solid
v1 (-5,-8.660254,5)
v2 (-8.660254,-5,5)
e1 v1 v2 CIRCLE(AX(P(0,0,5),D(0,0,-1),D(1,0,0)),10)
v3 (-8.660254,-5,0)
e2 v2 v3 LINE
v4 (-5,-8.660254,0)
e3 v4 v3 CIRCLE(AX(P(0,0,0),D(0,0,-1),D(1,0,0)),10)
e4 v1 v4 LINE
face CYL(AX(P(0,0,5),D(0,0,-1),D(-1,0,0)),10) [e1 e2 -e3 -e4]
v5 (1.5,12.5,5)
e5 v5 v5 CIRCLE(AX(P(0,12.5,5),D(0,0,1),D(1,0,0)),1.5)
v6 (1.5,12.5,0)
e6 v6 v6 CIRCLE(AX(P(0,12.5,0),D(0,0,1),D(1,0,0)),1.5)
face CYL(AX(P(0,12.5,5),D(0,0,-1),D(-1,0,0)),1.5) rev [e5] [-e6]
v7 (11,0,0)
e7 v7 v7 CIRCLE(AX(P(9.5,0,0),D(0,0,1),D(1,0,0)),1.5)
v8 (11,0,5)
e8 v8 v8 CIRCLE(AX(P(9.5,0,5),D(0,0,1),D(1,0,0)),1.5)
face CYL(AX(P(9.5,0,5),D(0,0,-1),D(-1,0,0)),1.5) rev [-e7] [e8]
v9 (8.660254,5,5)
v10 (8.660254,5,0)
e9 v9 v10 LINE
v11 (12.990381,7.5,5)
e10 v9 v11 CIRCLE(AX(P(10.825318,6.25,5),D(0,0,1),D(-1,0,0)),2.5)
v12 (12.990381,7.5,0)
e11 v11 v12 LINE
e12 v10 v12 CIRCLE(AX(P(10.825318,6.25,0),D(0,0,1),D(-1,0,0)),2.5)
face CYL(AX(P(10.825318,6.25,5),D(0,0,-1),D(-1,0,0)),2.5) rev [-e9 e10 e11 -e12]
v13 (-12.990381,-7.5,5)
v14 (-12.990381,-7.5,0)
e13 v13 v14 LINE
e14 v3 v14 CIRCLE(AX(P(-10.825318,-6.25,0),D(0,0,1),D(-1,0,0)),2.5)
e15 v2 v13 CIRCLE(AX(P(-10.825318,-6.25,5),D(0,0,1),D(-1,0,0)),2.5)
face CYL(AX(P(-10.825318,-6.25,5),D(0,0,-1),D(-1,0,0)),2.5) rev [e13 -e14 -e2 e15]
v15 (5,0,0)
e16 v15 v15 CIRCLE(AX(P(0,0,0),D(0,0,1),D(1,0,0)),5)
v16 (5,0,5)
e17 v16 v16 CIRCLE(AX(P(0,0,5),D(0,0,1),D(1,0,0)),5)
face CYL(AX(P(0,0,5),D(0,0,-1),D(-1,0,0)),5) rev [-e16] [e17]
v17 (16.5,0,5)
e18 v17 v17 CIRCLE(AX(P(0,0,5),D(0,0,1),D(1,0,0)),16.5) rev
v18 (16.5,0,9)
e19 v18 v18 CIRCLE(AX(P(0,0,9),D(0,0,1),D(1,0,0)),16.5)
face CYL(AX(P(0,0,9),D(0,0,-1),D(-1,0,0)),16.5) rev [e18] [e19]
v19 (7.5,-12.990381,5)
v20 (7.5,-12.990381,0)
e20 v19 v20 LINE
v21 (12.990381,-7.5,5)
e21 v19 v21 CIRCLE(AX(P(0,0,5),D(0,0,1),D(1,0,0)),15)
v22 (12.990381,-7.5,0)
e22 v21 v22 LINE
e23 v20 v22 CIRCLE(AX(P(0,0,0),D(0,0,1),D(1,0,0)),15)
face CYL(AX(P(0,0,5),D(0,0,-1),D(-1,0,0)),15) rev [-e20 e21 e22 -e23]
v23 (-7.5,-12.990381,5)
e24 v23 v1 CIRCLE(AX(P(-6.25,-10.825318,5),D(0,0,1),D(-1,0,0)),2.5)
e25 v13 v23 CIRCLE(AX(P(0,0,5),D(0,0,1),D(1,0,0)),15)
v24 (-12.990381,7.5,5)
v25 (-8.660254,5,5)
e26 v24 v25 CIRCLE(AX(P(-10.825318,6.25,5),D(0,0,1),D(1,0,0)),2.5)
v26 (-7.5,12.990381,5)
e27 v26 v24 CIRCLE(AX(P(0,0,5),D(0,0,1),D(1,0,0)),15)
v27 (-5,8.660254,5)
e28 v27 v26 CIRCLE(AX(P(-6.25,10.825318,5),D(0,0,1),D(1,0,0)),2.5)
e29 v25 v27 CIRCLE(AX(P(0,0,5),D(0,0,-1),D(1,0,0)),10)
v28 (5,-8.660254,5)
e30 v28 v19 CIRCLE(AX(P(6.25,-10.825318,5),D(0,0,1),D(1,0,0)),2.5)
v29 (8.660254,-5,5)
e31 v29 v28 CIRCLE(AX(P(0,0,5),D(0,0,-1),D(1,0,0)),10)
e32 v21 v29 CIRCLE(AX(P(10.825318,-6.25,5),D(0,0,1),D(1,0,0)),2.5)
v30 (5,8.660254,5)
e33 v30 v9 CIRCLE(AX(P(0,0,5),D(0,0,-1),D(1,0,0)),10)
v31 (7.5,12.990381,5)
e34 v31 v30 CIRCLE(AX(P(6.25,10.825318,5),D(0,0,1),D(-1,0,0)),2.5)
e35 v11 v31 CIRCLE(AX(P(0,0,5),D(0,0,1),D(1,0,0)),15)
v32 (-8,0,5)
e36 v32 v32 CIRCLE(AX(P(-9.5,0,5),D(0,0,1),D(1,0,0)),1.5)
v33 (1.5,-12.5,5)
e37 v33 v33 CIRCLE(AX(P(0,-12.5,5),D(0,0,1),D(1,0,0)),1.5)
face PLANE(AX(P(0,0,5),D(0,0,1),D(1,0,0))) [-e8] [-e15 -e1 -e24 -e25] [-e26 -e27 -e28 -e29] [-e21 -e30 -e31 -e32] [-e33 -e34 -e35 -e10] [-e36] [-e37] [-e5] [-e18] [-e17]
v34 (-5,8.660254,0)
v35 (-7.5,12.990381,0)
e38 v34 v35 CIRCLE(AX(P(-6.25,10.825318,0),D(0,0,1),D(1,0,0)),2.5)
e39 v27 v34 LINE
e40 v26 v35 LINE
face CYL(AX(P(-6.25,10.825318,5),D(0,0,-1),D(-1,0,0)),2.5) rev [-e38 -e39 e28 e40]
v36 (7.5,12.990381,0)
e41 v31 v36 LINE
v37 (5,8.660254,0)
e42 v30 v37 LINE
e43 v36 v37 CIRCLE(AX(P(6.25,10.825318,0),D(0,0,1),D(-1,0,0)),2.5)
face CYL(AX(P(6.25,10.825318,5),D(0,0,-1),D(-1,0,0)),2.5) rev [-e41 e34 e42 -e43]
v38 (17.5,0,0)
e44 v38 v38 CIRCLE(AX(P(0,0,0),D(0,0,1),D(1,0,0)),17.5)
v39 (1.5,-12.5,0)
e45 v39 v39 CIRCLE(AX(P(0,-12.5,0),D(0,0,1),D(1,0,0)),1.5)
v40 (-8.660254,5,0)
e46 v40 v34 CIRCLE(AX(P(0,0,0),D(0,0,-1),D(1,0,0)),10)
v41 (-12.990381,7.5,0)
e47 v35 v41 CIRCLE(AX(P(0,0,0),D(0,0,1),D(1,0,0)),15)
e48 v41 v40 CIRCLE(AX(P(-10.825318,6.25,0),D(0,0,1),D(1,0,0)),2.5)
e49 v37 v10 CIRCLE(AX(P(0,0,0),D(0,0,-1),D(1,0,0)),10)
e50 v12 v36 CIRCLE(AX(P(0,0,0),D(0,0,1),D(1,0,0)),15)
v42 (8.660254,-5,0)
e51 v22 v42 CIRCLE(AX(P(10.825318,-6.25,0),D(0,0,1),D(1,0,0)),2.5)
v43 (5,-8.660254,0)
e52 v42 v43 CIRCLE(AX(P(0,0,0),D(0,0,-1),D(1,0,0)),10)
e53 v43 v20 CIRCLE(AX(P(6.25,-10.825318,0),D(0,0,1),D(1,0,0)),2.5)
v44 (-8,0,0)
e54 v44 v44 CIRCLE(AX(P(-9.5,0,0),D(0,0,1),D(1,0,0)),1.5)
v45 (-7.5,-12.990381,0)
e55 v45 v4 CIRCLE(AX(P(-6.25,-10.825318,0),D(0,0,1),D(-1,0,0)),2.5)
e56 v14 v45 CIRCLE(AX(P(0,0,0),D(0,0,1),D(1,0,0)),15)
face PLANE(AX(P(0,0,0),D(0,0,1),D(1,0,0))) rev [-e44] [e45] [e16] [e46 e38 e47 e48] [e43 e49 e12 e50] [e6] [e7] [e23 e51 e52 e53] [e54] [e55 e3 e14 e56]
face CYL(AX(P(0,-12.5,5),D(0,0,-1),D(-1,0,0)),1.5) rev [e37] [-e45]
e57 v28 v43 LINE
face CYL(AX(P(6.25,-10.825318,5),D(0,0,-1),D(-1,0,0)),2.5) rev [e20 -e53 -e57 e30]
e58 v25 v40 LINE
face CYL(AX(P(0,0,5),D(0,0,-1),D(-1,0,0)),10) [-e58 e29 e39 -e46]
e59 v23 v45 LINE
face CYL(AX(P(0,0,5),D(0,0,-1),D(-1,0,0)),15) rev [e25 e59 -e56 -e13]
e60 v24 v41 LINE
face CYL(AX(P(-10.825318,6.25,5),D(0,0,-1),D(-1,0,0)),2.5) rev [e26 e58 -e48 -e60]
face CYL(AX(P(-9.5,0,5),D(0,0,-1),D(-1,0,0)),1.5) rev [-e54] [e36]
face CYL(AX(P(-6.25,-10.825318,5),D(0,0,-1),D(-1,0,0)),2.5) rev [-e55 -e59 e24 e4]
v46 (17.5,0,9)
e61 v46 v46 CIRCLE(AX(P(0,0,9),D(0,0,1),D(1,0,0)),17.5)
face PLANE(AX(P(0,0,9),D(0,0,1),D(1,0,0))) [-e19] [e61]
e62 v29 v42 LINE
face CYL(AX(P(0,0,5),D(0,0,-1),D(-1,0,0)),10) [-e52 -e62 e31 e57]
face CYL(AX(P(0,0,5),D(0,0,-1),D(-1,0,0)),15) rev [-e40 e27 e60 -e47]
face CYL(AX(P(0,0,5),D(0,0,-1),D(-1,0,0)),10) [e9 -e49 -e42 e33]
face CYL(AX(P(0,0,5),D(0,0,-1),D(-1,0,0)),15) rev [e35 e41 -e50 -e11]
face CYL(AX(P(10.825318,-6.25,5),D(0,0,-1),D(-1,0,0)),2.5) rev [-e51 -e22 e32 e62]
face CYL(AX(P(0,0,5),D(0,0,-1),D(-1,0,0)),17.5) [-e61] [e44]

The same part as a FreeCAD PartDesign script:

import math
import FreeCAD as App
import Part
import Sketcher

doc = App.newDocument("Part")
body = doc.addObject("PartDesign::Body", "Body")

# Sketch on XY plane
sketch1 = doc.addObject("Sketcher::SketchObject", "Sketch")
body.addObject(sketch1)
sketch1.AttachmentSupport = (doc.XY_Plane, [""])
sketch1.MapMode = "FlatFace"
sketch1.addGeometry(Part.Circle(App.Vector(0, 0, 0), App.Vector(0, 0, 1), 17.5), False)
sketch1.addGeometry(Part.ArcOfCircle(Part.Circle(App.Vector(-10.825318, -6.25, 0), App.Vector(0, 0, 1), 2.5), math.radians(30), math.radians(210)), False)
sketch1.addGeometry(Part.ArcOfCircle(Part.Circle(App.Vector(0, 0, 0), App.Vector(0, 0, 1), 10), math.radians(-150), math.radians(-120)), False)
sketch1.addGeometry(Part.ArcOfCircle(Part.Circle(App.Vector(-6.25, -10.825318, 0), App.Vector(0, 0, 1), 2.5), math.radians(-120), math.radians(60)), False)
sketch1.addGeometry(Part.ArcOfCircle(Part.Circle(App.Vector(0, 0, 0), App.Vector(0, 0, 1), 15), math.radians(-150), math.radians(-120)), False)
sketch1.addGeometry(Part.Circle(App.Vector(0, -12.5, 0), App.Vector(0, 0, 1), 1.5), False)
sketch1.addGeometry(Part.ArcOfCircle(Part.Circle(App.Vector(6.25, -10.825318, 0), App.Vector(0, 0, 1), 2.5), math.radians(120), math.radians(300)), False)
sketch1.addGeometry(Part.ArcOfCircle(Part.Circle(App.Vector(0, 0, 0), App.Vector(0, 0, 1), 10), math.radians(-60), math.radians(-30)), False)
sketch1.addGeometry(Part.ArcOfCircle(Part.Circle(App.Vector(10.825318, -6.25, 0), App.Vector(0, 0, 1), 2.5), math.radians(-30), math.radians(150)), False)
sketch1.addGeometry(Part.ArcOfCircle(Part.Circle(App.Vector(0, 0, 0), App.Vector(0, 0, 1), 15), math.radians(-60), math.radians(-30)), False)
sketch1.addGeometry(Part.Circle(App.Vector(-9.5, 0, 0), App.Vector(0, 0, 1), 1.5), False)
sketch1.addGeometry(Part.ArcOfCircle(Part.Circle(App.Vector(-6.25, 10.825318, 0), App.Vector(0, 0, 1), 2.5), math.radians(-60), math.radians(120)), False)
sketch1.addGeometry(Part.ArcOfCircle(Part.Circle(App.Vector(0, 0, 0), App.Vector(0, 0, 1), 10), math.radians(120), math.radians(150)), False)
sketch1.addGeometry(Part.ArcOfCircle(Part.Circle(App.Vector(-10.825318, 6.25, 0), App.Vector(0, 0, 1), 2.5), math.radians(150), math.radians(330)), False)
sketch1.addGeometry(Part.ArcOfCircle(Part.Circle(App.Vector(0, 0, 0), App.Vector(0, 0, 1), 15), math.radians(120), math.radians(150)), False)
sketch1.addGeometry(Part.Circle(App.Vector(0, 0, 0), App.Vector(0, 0, 1), 5), False)
sketch1.addGeometry(Part.Circle(App.Vector(9.5, 0, 0), App.Vector(0, 0, 1), 1.5), False)
sketch1.addGeometry(Part.Circle(App.Vector(0, 12.5, 0), App.Vector(0, 0, 1), 1.5), False)
sketch1.addGeometry(Part.ArcOfCircle(Part.Circle(App.Vector(0, 0, 0), App.Vector(0, 0, 1), 15), math.radians(30), math.radians(60)), False)
sketch1.addGeometry(Part.ArcOfCircle(Part.Circle(App.Vector(10.825318, 6.25, 0), App.Vector(0, 0, 1), 2.5), math.radians(-150), math.radians(30)), False)
sketch1.addGeometry(Part.ArcOfCircle(Part.Circle(App.Vector(0, 0, 0), App.Vector(0, 0, 1), 10), math.radians(30), math.radians(60)), False)
sketch1.addGeometry(Part.ArcOfCircle(Part.Circle(App.Vector(6.25, 10.825318, 0), App.Vector(0, 0, 1), 2.5), math.radians(60), math.radians(240)), False)
sketch1.addConstraint(Sketcher.Constraint("Tangent", 1, 1, 2, 1))
sketch1.addConstraint(Sketcher.Constraint("Tangent", 2, 2, 3, 2))
sketch1.addConstraint(Sketcher.Constraint("Tangent", 3, 1, 4, 2))
sketch1.addConstraint(Sketcher.Constraint("Tangent", 4, 1, 1, 2))
sketch1.addConstraint(Sketcher.Constraint("Tangent", 6, 1, 7, 1))
sketch1.addConstraint(Sketcher.Constraint("Tangent", 7, 2, 8, 2))
sketch1.addConstraint(Sketcher.Constraint("Tangent", 8, 1, 9, 2))
sketch1.addConstraint(Sketcher.Constraint("Tangent", 9, 1, 6, 2))
sketch1.addConstraint(Sketcher.Constraint("Tangent", 11, 1, 12, 1))
sketch1.addConstraint(Sketcher.Constraint("Tangent", 12, 2, 13, 2))
sketch1.addConstraint(Sketcher.Constraint("Tangent", 13, 1, 14, 2))
sketch1.addConstraint(Sketcher.Constraint("Tangent", 14, 1, 11, 2))
sketch1.addConstraint(Sketcher.Constraint("Tangent", 18, 1, 19, 2))
sketch1.addConstraint(Sketcher.Constraint("Tangent", 19, 1, 20, 1))
sketch1.addConstraint(Sketcher.Constraint("Tangent", 20, 2, 21, 2))
sketch1.addConstraint(Sketcher.Constraint("Tangent", 21, 1, 18, 2))
sketch1.addConstraint(Sketcher.Constraint("Coincident", 0, 3, -1, 1))
sketch1.addConstraint(Sketcher.Constraint("Coincident", 2, 3, -1, 1))
sketch1.addConstraint(Sketcher.Constraint("Coincident", 4, 3, -1, 1))
sketch1.addConstraint(Sketcher.Constraint("Coincident", 7, 3, -1, 1))
sketch1.addConstraint(Sketcher.Constraint("Coincident", 9, 3, -1, 1))
sketch1.addConstraint(Sketcher.Constraint("Coincident", 12, 3, -1, 1))
sketch1.addConstraint(Sketcher.Constraint("Coincident", 14, 3, -1, 1))
sketch1.addConstraint(Sketcher.Constraint("Coincident", 15, 3, -1, 1))
sketch1.addConstraint(Sketcher.Constraint("Coincident", 18, 3, -1, 1))
sketch1.addConstraint(Sketcher.Constraint("Coincident", 20, 3, -1, 1))
sketch1.addConstraint(Sketcher.Constraint("Equal", 3, 6))
sketch1.addConstraint(Sketcher.Constraint("Equal", 2, 7))
sketch1.addConstraint(Sketcher.Constraint("Equal", 5, 10))
sketch1.addConstraint(Sketcher.Constraint("Equal", 8, 11))
sketch1.addConstraint(Sketcher.Constraint("Equal", 7, 12))
sketch1.addConstraint(Sketcher.Constraint("Equal", 10, 16))
sketch1.addConstraint(Sketcher.Constraint("Equal", 16, 17))
sketch1.addConstraint(Sketcher.Constraint("Equal", 14, 18))
sketch1.addConstraint(Sketcher.Constraint("Equal", 13, 19))
sketch1.addConstraint(Sketcher.Constraint("Symmetric", 10, 3, 16, 3, -1, 1))
sketch1.addConstraint(Sketcher.Constraint("Symmetric", 5, 3, 17, 3, -1, 1))
sketch1.addConstraint(Sketcher.Constraint("PointOnObject", 5, 3, -2))
sketch1.addConstraint(Sketcher.Constraint("PointOnObject", 10, 3, -1))
sketch1.addConstraint(Sketcher.Constraint("Horizontal", 3, 3, 6, 3))
sketch1.addConstraint(Sketcher.Constraint("Horizontal", 1, 3, 8, 3))
sketch1.addConstraint(Sketcher.Constraint("Horizontal", 13, 3, 19, 3))
sketch1.addConstraint(Sketcher.Constraint("Horizontal", 11, 3, 21, 3))
sketch1.addConstraint(Sketcher.Constraint("Vertical", 3, 3, 11, 3))
sketch1.addConstraint(Sketcher.Constraint("Vertical", 1, 3, 13, 3))
sketch1.addConstraint(Sketcher.Constraint("Diameter", 0, 35.0))
sketch1.addConstraint(Sketcher.Constraint("Diameter", 5, 3.0))
sketch1.addConstraint(Sketcher.Constraint("Diameter", 15, 10.0))
sketch1.addConstraint(Sketcher.Constraint("Radius", 2, 10.0))
sketch1.addConstraint(Sketcher.Constraint("Radius", 4, 15.0))
sketch1.addConstraint(Sketcher.Constraint("DistanceY", 1, 1, -1, 1, 5.0))
sketch1.addConstraint(Sketcher.Constraint("DistanceX", 2, 2, -1, 1, 5.0))
sketch1.addConstraint(Sketcher.Constraint("DistanceY", 18, 1, 17, 3, 5.0))
sketch1.addConstraint(Sketcher.Constraint("DistanceX", 10, 3, -1, 1, 9.5))
pad1 = doc.addObject("PartDesign::Pad", "Pad")
body.addObject(pad1)
pad1.Profile = sketch1
pad1.Length = 5

# Sketch on XY plane
sketch2 = doc.addObject("Sketcher::SketchObject", "Sketch001")
body.addObject(sketch2)
sketch2.AttachmentSupport = (doc.XY_Plane, [""])
sketch2.MapMode = "FlatFace"
sketch2.AttachmentOffset = App.Placement(App.Vector(0, 0, 5), App.Rotation())
sketch2.addGeometry(Part.Circle(App.Vector(0, 0, 0), App.Vector(0, 0, 1), 17.5), False)
sketch2.addGeometry(Part.Circle(App.Vector(0, 0, 0), App.Vector(0, 0, 1), 16.5), False)
sketch2.addConstraint(Sketcher.Constraint("Coincident", 0, 3, -1, 1))
sketch2.addConstraint(Sketcher.Constraint("Coincident", 1, 3, -1, 1))
sketch2.addConstraint(Sketcher.Constraint("Diameter", 0, 35.0))
sketch2.addConstraint(Sketcher.Constraint("Diameter", 1, 33.0))
pad2 = doc.addObject("PartDesign::Pad", "Pad001")
body.addObject(pad2)
pad2.Profile = sketch2
pad2.Length = 4

doc.recompute()
